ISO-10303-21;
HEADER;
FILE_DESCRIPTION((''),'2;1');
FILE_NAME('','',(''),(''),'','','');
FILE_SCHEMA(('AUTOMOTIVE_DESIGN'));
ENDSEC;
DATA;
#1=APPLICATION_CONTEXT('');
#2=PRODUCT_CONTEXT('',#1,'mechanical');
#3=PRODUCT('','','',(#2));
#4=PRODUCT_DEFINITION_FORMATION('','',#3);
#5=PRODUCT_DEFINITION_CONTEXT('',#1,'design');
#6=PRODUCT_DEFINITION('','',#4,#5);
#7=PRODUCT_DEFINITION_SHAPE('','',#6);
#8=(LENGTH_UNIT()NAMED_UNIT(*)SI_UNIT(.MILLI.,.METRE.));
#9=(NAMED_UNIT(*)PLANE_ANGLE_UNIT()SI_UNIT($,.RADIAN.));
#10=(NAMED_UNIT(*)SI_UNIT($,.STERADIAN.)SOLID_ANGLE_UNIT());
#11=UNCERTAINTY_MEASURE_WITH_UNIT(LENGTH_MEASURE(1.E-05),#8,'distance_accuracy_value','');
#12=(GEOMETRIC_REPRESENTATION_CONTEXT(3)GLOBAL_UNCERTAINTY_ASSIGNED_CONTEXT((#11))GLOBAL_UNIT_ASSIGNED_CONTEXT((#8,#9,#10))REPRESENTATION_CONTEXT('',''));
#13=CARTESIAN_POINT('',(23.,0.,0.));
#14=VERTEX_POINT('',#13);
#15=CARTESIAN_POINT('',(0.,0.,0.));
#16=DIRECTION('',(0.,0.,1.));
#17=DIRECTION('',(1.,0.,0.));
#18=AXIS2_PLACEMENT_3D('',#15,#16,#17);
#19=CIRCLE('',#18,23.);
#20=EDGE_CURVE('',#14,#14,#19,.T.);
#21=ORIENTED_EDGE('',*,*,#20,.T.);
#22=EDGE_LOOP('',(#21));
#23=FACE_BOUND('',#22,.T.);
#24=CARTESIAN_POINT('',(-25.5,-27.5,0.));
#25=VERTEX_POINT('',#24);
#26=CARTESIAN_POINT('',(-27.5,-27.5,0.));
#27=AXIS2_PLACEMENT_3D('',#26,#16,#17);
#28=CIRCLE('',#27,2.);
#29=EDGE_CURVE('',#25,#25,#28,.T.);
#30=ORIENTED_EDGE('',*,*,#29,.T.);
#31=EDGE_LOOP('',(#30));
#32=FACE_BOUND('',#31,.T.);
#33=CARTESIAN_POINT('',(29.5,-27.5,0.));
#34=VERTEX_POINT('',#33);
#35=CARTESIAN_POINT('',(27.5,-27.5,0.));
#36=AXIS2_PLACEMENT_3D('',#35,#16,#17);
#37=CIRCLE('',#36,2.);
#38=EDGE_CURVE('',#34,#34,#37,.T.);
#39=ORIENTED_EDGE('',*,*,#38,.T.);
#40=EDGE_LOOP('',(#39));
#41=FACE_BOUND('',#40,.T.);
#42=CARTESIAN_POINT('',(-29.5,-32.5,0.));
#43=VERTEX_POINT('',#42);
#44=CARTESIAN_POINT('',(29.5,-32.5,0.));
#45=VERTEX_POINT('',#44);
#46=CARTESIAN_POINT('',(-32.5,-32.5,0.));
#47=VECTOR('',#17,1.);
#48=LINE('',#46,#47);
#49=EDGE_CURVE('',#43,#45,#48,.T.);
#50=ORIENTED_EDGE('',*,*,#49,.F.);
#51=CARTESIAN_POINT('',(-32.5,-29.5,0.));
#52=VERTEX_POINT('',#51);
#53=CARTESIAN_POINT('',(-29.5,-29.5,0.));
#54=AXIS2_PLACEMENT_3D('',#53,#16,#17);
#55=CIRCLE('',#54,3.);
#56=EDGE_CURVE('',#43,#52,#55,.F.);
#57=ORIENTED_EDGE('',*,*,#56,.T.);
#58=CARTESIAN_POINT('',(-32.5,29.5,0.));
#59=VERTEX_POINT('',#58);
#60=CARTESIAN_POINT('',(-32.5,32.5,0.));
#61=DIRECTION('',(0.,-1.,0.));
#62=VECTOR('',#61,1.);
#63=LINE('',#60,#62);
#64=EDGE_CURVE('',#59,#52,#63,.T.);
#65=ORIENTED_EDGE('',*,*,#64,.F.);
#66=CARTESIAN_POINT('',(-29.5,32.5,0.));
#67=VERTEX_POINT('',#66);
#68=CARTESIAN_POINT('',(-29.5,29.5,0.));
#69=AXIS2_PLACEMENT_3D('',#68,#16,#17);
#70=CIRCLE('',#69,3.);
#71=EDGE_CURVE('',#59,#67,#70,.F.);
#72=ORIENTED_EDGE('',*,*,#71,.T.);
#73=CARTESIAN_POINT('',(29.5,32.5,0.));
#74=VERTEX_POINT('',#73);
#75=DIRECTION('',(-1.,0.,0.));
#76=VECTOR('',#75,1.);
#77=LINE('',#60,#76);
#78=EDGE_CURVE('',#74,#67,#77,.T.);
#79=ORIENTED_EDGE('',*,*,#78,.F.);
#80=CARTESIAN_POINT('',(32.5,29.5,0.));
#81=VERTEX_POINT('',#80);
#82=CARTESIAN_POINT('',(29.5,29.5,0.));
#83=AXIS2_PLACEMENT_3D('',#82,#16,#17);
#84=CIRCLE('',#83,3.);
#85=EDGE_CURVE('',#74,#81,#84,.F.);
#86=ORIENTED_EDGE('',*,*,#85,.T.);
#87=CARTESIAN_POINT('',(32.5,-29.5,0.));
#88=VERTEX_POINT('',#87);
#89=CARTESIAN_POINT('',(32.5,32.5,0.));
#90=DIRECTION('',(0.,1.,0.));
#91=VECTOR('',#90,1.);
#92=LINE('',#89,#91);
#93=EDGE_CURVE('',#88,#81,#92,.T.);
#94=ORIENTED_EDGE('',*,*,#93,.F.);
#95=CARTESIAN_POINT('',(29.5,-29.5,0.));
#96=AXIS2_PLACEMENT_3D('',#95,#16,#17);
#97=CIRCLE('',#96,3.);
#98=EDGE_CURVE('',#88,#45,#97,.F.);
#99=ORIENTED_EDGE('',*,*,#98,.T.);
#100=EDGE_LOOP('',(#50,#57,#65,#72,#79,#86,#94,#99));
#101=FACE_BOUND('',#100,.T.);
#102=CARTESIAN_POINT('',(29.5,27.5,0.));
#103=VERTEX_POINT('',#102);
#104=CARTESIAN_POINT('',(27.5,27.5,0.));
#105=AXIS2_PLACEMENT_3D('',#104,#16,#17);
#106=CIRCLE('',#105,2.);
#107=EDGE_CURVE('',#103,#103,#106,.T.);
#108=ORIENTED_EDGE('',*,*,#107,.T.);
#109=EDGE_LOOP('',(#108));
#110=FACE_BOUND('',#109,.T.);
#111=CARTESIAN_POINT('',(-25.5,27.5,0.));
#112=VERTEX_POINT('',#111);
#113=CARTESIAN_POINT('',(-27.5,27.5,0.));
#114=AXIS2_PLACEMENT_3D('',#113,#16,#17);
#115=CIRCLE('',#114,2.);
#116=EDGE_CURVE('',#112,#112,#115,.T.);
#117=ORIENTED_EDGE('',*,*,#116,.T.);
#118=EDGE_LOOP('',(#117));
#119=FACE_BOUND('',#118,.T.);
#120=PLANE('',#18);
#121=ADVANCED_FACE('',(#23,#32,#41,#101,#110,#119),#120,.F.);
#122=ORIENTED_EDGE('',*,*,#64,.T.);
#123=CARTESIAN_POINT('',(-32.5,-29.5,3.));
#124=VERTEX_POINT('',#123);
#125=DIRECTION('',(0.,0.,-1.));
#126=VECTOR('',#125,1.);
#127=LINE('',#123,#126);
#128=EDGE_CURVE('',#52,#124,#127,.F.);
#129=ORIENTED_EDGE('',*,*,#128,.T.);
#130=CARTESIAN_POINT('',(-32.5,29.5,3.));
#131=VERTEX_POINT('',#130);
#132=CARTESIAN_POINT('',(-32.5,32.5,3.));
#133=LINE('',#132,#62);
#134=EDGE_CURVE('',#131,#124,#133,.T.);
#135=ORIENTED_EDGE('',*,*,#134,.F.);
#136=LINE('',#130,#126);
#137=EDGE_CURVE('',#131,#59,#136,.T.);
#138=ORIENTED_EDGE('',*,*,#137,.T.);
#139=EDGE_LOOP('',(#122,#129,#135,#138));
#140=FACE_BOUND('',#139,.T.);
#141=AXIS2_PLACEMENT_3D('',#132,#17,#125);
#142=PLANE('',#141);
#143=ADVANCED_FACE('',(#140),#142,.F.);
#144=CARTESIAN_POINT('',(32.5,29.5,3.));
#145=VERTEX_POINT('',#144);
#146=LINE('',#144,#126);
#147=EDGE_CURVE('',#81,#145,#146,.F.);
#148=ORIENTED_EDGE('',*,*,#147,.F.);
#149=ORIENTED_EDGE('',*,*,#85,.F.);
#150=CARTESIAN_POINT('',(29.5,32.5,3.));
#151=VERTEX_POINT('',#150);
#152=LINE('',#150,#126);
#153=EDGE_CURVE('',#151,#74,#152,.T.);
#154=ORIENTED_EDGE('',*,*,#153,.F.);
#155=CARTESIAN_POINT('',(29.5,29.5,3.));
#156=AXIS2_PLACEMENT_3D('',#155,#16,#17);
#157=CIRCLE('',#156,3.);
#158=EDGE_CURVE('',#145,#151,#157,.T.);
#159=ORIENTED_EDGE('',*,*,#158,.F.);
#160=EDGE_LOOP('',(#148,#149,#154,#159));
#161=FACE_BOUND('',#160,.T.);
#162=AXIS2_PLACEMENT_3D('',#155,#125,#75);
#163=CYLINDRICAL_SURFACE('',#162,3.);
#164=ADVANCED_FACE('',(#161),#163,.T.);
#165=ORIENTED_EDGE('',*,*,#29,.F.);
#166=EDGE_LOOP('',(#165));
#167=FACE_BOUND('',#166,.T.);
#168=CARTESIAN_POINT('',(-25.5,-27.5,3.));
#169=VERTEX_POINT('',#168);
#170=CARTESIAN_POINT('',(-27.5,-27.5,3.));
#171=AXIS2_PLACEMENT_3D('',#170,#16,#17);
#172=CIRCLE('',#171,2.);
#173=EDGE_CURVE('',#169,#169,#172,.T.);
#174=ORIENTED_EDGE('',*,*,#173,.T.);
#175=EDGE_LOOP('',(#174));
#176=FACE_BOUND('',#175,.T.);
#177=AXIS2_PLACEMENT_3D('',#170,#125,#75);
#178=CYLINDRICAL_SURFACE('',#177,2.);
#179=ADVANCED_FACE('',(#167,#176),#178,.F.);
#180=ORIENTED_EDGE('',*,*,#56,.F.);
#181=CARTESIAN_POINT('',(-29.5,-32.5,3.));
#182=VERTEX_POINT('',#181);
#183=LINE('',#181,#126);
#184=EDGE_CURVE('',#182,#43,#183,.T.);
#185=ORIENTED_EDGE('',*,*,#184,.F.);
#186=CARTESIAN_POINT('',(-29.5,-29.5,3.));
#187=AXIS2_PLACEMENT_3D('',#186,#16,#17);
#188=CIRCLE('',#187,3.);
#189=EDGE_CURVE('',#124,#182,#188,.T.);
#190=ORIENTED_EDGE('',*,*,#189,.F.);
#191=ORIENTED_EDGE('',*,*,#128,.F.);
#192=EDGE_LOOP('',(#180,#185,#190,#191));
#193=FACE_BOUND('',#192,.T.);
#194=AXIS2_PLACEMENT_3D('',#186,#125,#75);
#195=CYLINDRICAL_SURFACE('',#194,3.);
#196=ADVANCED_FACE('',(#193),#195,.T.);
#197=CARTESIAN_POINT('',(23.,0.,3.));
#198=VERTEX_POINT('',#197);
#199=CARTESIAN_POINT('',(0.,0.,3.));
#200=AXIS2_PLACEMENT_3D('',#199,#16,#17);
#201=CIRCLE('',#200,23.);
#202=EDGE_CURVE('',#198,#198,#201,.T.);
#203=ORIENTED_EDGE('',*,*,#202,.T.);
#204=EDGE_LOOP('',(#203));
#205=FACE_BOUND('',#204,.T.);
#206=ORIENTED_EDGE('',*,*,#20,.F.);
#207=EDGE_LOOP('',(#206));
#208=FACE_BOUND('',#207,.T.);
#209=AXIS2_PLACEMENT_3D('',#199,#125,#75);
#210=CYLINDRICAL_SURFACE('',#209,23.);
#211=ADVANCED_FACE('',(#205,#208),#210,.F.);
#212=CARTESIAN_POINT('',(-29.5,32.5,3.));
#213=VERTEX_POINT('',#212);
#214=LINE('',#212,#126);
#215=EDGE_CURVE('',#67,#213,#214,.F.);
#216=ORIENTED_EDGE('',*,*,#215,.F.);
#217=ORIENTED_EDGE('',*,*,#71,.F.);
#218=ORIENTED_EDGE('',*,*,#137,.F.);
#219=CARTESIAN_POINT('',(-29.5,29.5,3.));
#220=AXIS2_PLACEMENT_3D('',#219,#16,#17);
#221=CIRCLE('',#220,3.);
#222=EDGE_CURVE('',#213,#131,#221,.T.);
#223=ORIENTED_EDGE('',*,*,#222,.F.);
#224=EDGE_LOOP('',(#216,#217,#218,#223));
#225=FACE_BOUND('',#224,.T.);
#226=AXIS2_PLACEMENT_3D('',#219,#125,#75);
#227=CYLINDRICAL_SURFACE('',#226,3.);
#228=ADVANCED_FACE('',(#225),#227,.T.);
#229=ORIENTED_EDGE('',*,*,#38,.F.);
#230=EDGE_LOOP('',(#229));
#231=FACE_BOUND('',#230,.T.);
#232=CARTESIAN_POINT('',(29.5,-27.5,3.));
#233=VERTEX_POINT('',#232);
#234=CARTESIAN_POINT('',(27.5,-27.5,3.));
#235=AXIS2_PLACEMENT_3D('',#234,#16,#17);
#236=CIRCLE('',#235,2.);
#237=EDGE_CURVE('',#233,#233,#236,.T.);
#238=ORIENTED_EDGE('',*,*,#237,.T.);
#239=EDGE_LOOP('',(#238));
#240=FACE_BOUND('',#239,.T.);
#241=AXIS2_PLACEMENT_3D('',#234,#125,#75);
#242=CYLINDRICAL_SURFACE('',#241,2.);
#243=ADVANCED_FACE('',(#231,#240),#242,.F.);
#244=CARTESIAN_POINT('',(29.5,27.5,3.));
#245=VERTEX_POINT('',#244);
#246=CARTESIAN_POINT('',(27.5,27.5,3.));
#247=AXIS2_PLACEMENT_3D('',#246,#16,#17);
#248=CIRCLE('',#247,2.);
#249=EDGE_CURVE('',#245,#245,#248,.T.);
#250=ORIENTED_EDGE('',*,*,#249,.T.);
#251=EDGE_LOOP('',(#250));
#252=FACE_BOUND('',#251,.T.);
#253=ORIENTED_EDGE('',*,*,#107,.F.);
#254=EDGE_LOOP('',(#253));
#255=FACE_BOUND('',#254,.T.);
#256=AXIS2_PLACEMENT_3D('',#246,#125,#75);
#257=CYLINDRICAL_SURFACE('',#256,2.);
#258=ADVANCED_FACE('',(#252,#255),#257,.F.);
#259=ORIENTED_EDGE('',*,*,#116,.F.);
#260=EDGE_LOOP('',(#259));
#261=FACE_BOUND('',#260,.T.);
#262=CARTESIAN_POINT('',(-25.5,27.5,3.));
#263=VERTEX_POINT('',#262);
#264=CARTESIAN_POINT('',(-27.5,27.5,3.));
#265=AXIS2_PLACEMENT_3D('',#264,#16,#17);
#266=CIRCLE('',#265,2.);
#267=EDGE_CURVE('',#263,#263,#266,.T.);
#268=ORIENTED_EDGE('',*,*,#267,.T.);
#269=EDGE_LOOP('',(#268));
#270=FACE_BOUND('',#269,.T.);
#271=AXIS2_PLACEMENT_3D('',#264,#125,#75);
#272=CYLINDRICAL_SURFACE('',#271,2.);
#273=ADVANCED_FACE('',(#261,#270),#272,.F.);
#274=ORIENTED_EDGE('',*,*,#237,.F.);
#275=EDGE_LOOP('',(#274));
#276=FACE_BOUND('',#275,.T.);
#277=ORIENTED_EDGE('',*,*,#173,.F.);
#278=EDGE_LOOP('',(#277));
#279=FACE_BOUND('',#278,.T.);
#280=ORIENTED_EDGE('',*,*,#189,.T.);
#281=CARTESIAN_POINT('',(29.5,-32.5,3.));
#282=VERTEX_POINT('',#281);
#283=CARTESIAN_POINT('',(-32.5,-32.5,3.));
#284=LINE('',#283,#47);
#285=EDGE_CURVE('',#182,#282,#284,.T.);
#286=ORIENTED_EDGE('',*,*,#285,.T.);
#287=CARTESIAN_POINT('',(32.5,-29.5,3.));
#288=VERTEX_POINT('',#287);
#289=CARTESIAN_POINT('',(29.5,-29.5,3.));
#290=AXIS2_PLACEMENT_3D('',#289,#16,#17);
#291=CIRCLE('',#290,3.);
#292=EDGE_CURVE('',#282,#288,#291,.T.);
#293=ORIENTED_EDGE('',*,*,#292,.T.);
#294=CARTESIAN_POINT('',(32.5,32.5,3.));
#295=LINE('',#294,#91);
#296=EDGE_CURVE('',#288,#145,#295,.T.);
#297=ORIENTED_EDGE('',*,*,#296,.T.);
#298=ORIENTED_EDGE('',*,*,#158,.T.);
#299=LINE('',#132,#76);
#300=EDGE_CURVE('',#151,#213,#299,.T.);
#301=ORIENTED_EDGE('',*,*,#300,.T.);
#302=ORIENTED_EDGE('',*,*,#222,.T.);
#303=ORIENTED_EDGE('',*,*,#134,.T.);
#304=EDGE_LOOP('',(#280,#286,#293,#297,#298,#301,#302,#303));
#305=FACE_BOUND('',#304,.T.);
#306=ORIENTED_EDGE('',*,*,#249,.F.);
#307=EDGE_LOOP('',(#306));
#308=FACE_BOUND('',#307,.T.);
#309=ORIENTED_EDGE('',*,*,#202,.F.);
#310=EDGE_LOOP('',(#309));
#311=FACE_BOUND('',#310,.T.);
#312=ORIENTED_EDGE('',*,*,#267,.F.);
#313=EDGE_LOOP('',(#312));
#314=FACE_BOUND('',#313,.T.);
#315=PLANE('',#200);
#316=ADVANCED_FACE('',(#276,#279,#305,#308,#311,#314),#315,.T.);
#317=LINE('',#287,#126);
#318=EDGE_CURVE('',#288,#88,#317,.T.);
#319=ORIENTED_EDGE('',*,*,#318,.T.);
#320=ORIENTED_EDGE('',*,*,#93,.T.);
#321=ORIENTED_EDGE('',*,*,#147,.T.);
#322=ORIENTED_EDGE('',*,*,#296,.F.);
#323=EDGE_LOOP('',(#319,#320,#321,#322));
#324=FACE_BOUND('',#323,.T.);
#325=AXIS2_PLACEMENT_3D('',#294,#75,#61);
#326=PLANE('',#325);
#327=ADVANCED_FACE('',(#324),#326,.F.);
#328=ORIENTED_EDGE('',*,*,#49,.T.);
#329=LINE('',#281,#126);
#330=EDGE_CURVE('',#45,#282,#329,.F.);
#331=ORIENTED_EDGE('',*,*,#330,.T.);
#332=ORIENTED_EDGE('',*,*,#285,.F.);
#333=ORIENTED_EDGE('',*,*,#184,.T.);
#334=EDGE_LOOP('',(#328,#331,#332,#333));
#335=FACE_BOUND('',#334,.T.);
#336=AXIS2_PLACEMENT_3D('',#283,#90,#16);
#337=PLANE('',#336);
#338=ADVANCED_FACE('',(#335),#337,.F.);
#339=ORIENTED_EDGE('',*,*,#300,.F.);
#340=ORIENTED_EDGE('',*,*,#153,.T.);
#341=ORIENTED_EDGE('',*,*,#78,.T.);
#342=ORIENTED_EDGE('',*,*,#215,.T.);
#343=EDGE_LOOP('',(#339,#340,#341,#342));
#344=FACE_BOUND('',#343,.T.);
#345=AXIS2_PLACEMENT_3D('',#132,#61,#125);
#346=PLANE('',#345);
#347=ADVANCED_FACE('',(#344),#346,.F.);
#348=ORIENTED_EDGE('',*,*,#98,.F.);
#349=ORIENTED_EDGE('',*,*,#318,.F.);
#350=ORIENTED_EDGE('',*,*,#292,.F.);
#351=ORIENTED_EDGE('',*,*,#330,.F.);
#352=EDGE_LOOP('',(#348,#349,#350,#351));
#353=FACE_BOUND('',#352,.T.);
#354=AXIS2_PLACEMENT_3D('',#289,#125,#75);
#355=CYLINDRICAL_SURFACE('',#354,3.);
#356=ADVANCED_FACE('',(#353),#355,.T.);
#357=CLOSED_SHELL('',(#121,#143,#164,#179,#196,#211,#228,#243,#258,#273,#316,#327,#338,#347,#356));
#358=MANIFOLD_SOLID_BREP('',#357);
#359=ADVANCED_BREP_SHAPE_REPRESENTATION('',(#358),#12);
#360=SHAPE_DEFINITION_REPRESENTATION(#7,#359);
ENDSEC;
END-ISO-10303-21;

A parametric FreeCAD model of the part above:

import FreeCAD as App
import Part
import Sketcher


def edges_at(feature, points):
    """Names of the edges that pass closest to the given points."""
    edges = feature.Shape.Edges
    near = lambda p: min(range(len(edges)), key=lambda i: edges[i].distToShape(Part.Vertex(*p))[0])
    return sorted({f"Edge{near(p) + 1}" for p in points})


def add_polygon(sketch, points):
    """Adds a closed chain of lines whose ends are joined by coincident constraints."""
    first, n = sketch.GeometryCount, len(points)
    for a, b in zip(points, points[1:] + points[:1]):
        sketch.addGeometry(Part.LineSegment(App.Vector(*a, 0), App.Vector(*b, 0)), False)
    for i in range(n):
        sketch.addConstraint(Sketcher.Constraint("Coincident", first + i, 2, first + (i + 1) % n, 1))

doc = App.newDocument("Part")
body = doc.addObject("PartDesign::Body", "Body")

sketch1 = body.newObject("Sketcher::SketchObject", "Sketch")
sketch1.AttachmentSupport = (doc.getObject("XY_Plane"), [""])
sketch1.MapMode = "FlatFace"
add_polygon(sketch1, [(-32.5, 32.5), (-32.5, -32.5), (32.5, -32.5), (32.5, 32.5)])
sketch1.addGeometry(Part.Circle(App.Vector(-27.5, -27.5, 0), App.Vector(0, 0, 1), 2), False)
sketch1.addGeometry(Part.Circle(App.Vector(27.5, -27.5, 0), App.Vector(0, 0, 1), 2), False)
sketch1.addGeometry(Part.Circle(App.Vector(-27.5, 27.5, 0), App.Vector(0, 0, 1), 2), False)
sketch1.addGeometry(Part.Circle(App.Vector(0, 0, 0), App.Vector(0, 0, 1), 23), False)
sketch1.addGeometry(Part.Circle(App.Vector(27.5, 27.5, 0), App.Vector(0, 0, 1), 2), False)
sketch1.addConstraint([
    Sketcher.Constraint("Vertical", 0),
    Sketcher.Constraint("Horizontal", 1),
    Sketcher.Constraint("Vertical", 2),
    Sketcher.Constraint("Horizontal", 3),
    Sketcher.Constraint("Coincident", 7, 3, -1, 1),
    Sketcher.Constraint("Equal", 4, 5),
    Sketcher.Constraint("Equal", 5, 6),
    Sketcher.Constraint("Equal", 6, 8),
    Sketcher.Constraint("Symmetric", 5, 3, 6, 3, -1, 1),
    Sketcher.Constraint("Symmetric", 4, 3, 8, 3, -1, 1),
    Sketcher.Constraint("Symmetric", 0, 2, 2, 2, -1, 1),
    Sketcher.Constraint("Symmetric", 4, 3, 5, 3, -2),
    Sketcher.Constraint("Equal", 3, 0),
    Sketcher.Constraint("Diameter", 4, 4.0),
    Sketcher.Constraint("Diameter", 7, 46.0),
    Sketcher.Constraint("DistanceX", 1, 1, 1, 2, 65.0),
    Sketcher.Constraint("DistanceX", 4, 3, 5, 3, 55.0),
    Sketcher.Constraint("DistanceY", 4, 3, 6, 3, 55.0),
])
pad1 = body.newObject("PartDesign::Pad", "Pad")
pad1.Profile = sketch1
pad1.Length = 3
doc.recompute()

fillet = body.newObject("PartDesign::Fillet", "Fillet")
fillet.Base = (pad1, edges_at(pad1, [
    (32.5, -32.5, 1.5),
    (-32.5, -32.5, 1.5),
    (-32.5, 32.5, 1.5),
    (32.5, 32.5, 1.5),
]))
fillet.Radius = 3

doc.recompute()
